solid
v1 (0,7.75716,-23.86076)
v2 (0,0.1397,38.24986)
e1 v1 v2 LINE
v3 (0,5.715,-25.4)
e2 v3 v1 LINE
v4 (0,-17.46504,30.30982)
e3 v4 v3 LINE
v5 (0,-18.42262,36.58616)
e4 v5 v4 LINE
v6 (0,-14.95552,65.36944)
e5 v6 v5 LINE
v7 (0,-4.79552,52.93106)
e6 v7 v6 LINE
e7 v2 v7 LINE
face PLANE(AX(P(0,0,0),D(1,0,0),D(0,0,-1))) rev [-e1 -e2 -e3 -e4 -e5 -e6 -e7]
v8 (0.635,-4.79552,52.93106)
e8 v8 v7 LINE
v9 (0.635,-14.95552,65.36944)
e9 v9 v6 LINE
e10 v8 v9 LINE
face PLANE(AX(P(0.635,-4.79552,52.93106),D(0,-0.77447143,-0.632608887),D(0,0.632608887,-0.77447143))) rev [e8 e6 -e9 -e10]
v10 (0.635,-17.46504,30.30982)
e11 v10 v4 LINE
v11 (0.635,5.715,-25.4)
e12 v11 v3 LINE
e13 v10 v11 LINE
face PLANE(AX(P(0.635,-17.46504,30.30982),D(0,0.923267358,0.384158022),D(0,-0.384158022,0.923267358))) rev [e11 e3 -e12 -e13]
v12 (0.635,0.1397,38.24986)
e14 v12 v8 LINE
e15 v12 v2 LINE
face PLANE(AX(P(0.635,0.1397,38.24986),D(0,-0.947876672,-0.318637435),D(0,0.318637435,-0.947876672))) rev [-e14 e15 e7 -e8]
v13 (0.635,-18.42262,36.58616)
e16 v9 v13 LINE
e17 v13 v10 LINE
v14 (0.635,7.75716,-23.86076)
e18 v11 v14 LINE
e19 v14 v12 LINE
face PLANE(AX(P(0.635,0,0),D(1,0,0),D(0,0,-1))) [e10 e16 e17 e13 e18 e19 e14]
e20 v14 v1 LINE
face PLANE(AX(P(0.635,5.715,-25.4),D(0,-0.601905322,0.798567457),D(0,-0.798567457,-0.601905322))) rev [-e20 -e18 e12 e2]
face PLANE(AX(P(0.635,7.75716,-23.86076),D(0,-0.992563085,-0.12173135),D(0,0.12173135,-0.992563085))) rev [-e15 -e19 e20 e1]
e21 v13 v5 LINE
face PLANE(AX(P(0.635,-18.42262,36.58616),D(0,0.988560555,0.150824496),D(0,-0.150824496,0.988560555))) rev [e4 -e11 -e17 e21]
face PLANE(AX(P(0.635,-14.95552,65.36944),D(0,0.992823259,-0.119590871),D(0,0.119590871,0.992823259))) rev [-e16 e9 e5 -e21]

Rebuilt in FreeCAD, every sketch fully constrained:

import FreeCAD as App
import Part
import Sketcher
from FreeCAD import Vector
Q = App.Units.Quantity

doc = App.newDocument("Part")
body = doc.addObject("PartDesign::Body", "Body")

sketch1 = body.newObject("Sketcher::SketchObject", "Sketch")
sketch1.AttachmentSupport = (doc.getObject("YZ_Plane"), [""])
sketch1.MapMode = "FlatFace"
sketch1.addGeometry([
    Part.LineSegment(Vector(5.715, -25.4, 0), Vector(7.75716, -23.86076, 0)),
    Part.LineSegment(Vector(7.75716, -23.86076, 0), Vector(0.1397, 38.24986, 0)),
    Part.LineSegment(Vector(0.1397, 38.24986, 0), Vector(-4.79552, 52.93106, 0)),
    Part.LineSegment(Vector(-4.79552, 52.93106, 0), Vector(-14.95552, 65.36944, 0)),
    Part.LineSegment(Vector(-14.95552, 65.36944, 0), Vector(-18.42262, 36.58616, 0)),
    Part.LineSegment(Vector(-18.42262, 36.58616, 0), Vector(-17.46504, 30.30982, 0)),
    Part.LineSegment(Vector(-17.46504, 30.30982, 0), Vector(5.715, -25.4, 0)),
], False)
sketch1.addConstraint([
    Sketcher.Constraint("Coincident", 0, 2, 1, 1),
    Sketcher.Constraint("Coincident", 1, 2, 2, 1),
    Sketcher.Constraint("Coincident", 2, 2, 3, 1),
    Sketcher.Constraint("Coincident", 3, 2, 4, 1),
    Sketcher.Constraint("Coincident", 4, 2, 5, 1),
    Sketcher.Constraint("Coincident", 5, 2, 6, 1),
    Sketcher.Constraint("Coincident", 6, 2, 0, 1),
    Sketcher.Constraint("DistanceY", 6, 2, -1, 1, Q("1 in")),
    Sketcher.Constraint("DistanceX", 3, 2, 2, 2, Q("0.4 in")),
    Sketcher.Constraint("DistanceX", -1, 1, 6, 2, Q("0.225 in")),
    Sketcher.Constraint("DistanceY", 1, 2, 2, 2, Q("0.578 in")),
    Sketcher.Constraint("DistanceY", 0, 2, 3, 2, Q("3.513 in")),
    Sketcher.Constraint("DistanceX", 5, 2, 0, 2, Q("0.993 in")),
    Sketcher.Constraint("DistanceX", -1, 1, 0, 2, Q("0.3054 in")),
    Sketcher.Constraint("DistanceY", 0, 2, -1, 1, Q("0.9394 in")),
    Sketcher.Constraint("DistanceX", -1, 1, 1, 2, Q("0.0055 in")),
    Sketcher.Constraint("DistanceY", -1, 1, 1, 2, Q("1.5059 in")),
    Sketcher.Constraint("DistanceX", 2, 2, -1, 1, Q("0.1888 in")),
    Sketcher.Constraint("DistanceX", 4, 2, -1, 1, Q("0.7253 in")),
    Sketcher.Constraint("DistanceY", -1, 1, 4, 2, Q("1.4404 in")),
    Sketcher.Constraint("DistanceY", -1, 1, 5, 2, Q("1.1933 in")),
])
pad1 = body.newObject("PartDesign::Pad", "Pad")
pad1.Profile = sketch1
pad1.Length = Q("0.025 in")

doc.recompute()
